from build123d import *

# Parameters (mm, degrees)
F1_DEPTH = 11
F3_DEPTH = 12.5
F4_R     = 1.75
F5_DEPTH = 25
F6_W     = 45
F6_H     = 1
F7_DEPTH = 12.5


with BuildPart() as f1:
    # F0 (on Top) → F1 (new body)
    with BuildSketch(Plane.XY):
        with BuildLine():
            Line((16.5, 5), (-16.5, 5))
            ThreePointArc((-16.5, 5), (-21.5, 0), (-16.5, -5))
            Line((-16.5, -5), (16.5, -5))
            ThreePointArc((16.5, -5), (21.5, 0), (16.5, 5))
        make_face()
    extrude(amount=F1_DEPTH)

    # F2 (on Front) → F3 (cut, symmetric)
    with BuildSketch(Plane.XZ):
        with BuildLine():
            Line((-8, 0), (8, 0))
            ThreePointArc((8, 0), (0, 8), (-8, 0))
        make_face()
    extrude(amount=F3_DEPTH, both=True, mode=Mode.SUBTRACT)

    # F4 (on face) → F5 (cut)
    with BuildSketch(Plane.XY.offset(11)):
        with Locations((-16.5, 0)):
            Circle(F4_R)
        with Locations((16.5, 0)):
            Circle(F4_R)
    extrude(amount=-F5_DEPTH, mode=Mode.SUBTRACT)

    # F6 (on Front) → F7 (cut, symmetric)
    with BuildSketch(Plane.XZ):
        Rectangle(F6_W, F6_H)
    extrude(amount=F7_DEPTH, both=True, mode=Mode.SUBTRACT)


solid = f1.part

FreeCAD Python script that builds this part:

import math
import FreeCAD as App
import Part
import Sketcher
from FreeCAD import Vector

doc = App.newDocument("Part")
params = doc.addObject("Spreadsheet::Sheet", "Params")
for row, (alias, value) in enumerate([
    ("sketch1_radius", "5 mm"),
    ("sketch1_width", "33 mm"),
    ("pad1_length", "11 mm"),
    ("sketch2_radius", "8 mm"),
    ("pocket1_length", "25 mm"),
    ("sketch3_diameter", "3.5 mm"),
    ("pocket2_length", "25 mm"),
    ("sketch4_width", "45 mm"),
    ("sketch4_height", "1 mm"),
    ("pocket3_length", "25 mm"),
], start=1):
    params.set(f"A{row}", alias)
    params.set(f"B{row}", "=" + value)
    params.setAlias(f"B{row}", alias)

body = doc.addObject("PartDesign::Body", "Body")

sketch1 = body.newObject("Sketcher::SketchObject", "Sketch")
sketch1.AttachmentSupport = (doc.getObject("XY_Plane"), [""])
sketch1.MapMode = "FlatFace"
sketch1.addGeometry(Part.LineSegment(Vector(16, 5, 0), Vector(-16, 5, 0)), False)
sketch1.addGeometry(Part.ArcOfCircle(Part.Circle(Vector(-16, 0, 0), Vector(0, 0, 1), 5), math.radians(90), math.radians(270)), False)
sketch1.addGeometry(Part.LineSegment(Vector(-16, -5, 0), Vector(16, -5, 0)), False)
sketch1.addGeometry(Part.ArcOfCircle(Part.Circle(Vector(16, 0, 0), Vector(0, 0, 1), 5), math.radians(-90), math.radians(90)), False)
sketch1.addConstraint(Sketcher.Constraint("Tangent", 0, 2, 1, 1))
sketch1.addConstraint(Sketcher.Constraint("Tangent", 1, 2, 2, 1))
sketch1.addConstraint(Sketcher.Constraint("Tangent", 2, 2, 3, 1))
sketch1.addConstraint(Sketcher.Constraint("Tangent", 3, 2, 0, 1))
sketch1.addConstraint(Sketcher.Constraint("Horizontal", 0))
sketch1.addConstraint(Sketcher.Constraint("Horizontal", 2))
sketch1.addConstraint(Sketcher.Constraint("Symmetric", 1, 3, 3, 3, -1, 1))
sketch1.addConstraint(Sketcher.Constraint("Radius", 1, 5.0))
sketch1.addConstraint(Sketcher.Constraint("DistanceX", 0, 2, 0, 1, 33.0))
sketch1.setExpression("Constraints[7]", "Params.sketch1_radius")
sketch1.setExpression("Constraints[8]", "Params.sketch1_width")
pad1 = body.newObject("PartDesign::Pad", "Pad")
pad1.Profile = sketch1
pad1.setExpression("Length", "Params.pad1_length")

sketch2 = body.newObject("Sketcher::SketchObject", "Sketch001")
sketch2.AttachmentSupport = (doc.getObject("XZ_Plane"), [""])
sketch2.MapMode = "FlatFace"
sketch2.addGeometry(Part.LineSegment(Vector(-8, 0, 0), Vector(8, 0, 0)), False)
sketch2.addGeometry(Part.ArcOfCircle(Part.Circle(Vector(0, 0, 0), Vector(0, 0, 1), 8), math.radians(0), math.radians(180)), False)
sketch2.addConstraint(Sketcher.Constraint("Coincident", 0, 1, 1, 2))
sketch2.addConstraint(Sketcher.Constraint("Coincident", 1, 1, 0, 2))
sketch2.addConstraint(Sketcher.Constraint("Horizontal", 0))
sketch2.addConstraint(Sketcher.Constraint("Coincident", 1, 3, -1, 1))
sketch2.addConstraint(Sketcher.Constraint("PointOnObject", 0, 1, -1))
sketch2.addConstraint(Sketcher.Constraint("Radius", 1, 8.0))
sketch2.setExpression("Constraints[5]", "Params.sketch2_radius")
pocket1 = body.newObject("PartDesign::Pocket", "Pocket")
pocket1.Profile = sketch2
pocket1.setExpression("Length", "Params.pocket1_length")
pocket1.Midplane = True

sketch3 = body.newObject("Sketcher::SketchObject", "Sketch002")
sketch3.AttachmentSupport = (doc.getObject("XY_Plane"), [""])
sketch3.MapMode = "FlatFace"
sketch3.AttachmentOffset = App.Placement(Vector(0, 0, 11), App.Rotation())
sketch3.addGeometry(Part.Circle(Vector(-16.5, 0, 0), Vector(0, 0, 1), 1.8), False)
sketch3.addGeometry(Part.Circle(Vector(16.5, 0, 0), Vector(0, 0, 1), 1.8), False)
sketch3.addConstraint(Sketcher.Constraint("Equal", 0, 1))
sketch3.addConstraint(Sketcher.Constraint("Symmetric", 0, 3, 1, 3, -1, 1))
sketch3.addConstraint(Sketcher.Constraint("PointOnObject", 0, 3, -1))
sketch3.addConstraint(Sketcher.Constraint("Diameter", 0, 3.5))
sketch3.addConstraint(Sketcher.Constraint("DistanceX", 0, 3, 1, 3, 33.0))
sketch3.setExpression("Constraints[3]", "Params.sketch3_diameter")
pocket2 = body.newObject("PartDesign::Pocket", "Pocket001")
pocket2.Profile = sketch3
pocket2.setExpression("Length", "Params.pocket2_length")

sketch4 = body.newObject("Sketcher::SketchObject", "Sketch003")
sketch4.AttachmentSupport = (doc.getObject("XZ_Plane"), [""])
sketch4.MapMode = "FlatFace"
sketch4.addGeometry(Part.LineSegment(Vector(-22.5, 0.5, 0), Vector(-22.5, -0.5, 0)), False)
sketch4.addGeometry(Part.LineSegment(Vector(-22.5, -0.5, 0), Vector(22.5, -0.5, 0)), False)
sketch4.addGeometry(Part.LineSegment(Vector(22.5, -0.5, 0), Vector(22.5, 0.5, 0)), False)
sketch4.addGeometry(Part.LineSegment(Vector(22.5, 0.5, 0), Vector(-22.5, 0.5, 0)), False)
sketch4.addConstraint(Sketcher.Constraint("Coincident", 0, 2, 1, 1))
sketch4.addConstraint(Sketcher.Constraint("Coincident", 1, 2, 2, 1))
sketch4.addConstraint(Sketcher.Constraint("Coincident", 2, 2, 3, 1))
sketch4.addConstraint(Sketcher.Constraint("Coincident", 3, 2, 0, 1))
sketch4.addConstraint(Sketcher.Constraint("Vertical", 0))
sketch4.addConstraint(Sketcher.Constraint("Horizontal", 1))
sketch4.addConstraint(Sketcher.Constraint("Vertical", 2))
sketch4.addConstraint(Sketcher.Constraint("Horizontal", 3))
sketch4.addConstraint(Sketcher.Constraint("Symmetric", 0, 2, 2, 2, -1, 1))
sketch4.addConstraint(Sketcher.Constraint("DistanceX", 1, 1, 1, 2, 45.0))
sketch4.addConstraint(Sketcher.Constraint("DistanceY", 0, 2, 0, 1, 1.0))
sketch4.setExpression("Constraints[9]", "Params.sketch4_width")
sketch4.setExpression("Constraints[10]", "Params.sketch4_height")
pocket3 = body.newObject("PartDesign::Pocket", "Pocket002")
pocket3.Profile = sketch4
pocket3.setExpression("Length", "Params.pocket3_length")
pocket3.Midplane = True

doc.recompute()
